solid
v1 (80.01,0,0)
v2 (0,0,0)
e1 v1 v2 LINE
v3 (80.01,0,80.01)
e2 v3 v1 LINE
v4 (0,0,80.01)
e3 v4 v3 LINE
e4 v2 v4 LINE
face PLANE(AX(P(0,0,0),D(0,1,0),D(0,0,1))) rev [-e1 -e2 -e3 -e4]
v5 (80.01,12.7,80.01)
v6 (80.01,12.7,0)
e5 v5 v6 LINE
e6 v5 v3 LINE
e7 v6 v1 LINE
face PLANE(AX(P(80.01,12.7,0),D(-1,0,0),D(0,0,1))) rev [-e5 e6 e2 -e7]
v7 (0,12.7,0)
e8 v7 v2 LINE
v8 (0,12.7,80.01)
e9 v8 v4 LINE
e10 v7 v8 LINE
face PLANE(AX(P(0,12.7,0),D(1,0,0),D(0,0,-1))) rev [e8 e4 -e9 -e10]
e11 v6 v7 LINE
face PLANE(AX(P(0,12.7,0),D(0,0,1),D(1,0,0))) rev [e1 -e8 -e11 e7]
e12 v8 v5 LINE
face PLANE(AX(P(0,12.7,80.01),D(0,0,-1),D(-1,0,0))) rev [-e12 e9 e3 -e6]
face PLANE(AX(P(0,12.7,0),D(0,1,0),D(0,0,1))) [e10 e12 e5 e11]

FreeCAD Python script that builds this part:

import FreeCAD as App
import Part
import Sketcher
Q = App.Units.Quantity


def add_polygon(sketch, points):
    """Adds a closed chain of lines whose ends are joined by coincident constraints."""
    first, n = sketch.GeometryCount, len(points)
    for a, b in zip(points, points[1:] + points[:1]):
        sketch.addGeometry(Part.LineSegment(App.Vector(*a, 0), App.Vector(*b, 0)), False)
    for i in range(n):
        sketch.addConstraint(Sketcher.Constraint("Coincident", first + i, 2, first + (i + 1) % n, 1))

doc = App.newDocument("Part")
params = doc.addObject("Spreadsheet::Sheet", "Params")
for row, (alias, value) in enumerate([
    ("sketch1_width", "3.15 in"),
    ("pad1_length", "0.5 in"),
], start=1):
    params.set(f"A{row}", alias)
    params.set(f"B{row}", "=" + value)
    params.setAlias(f"B{row}", alias)

body = doc.addObject("PartDesign::Body", "Body")

# Sketch on XZ plane
sketch1 = body.newObject("Sketcher::SketchObject", "Sketch")
sketch1.AttachmentSupport = (doc.getObject("XZ_Plane"), [""])
sketch1.MapMode = "FlatFace"
add_polygon(sketch1, [(0, 0), (0, 80), (80, 80), (80, 0)])  # lines 0-3
sketch1.addConstraint([
    Sketcher.Constraint("Vertical", 0),
    Sketcher.Constraint("Horizontal", 1),
    Sketcher.Constraint("Vertical", 2),
    Sketcher.Constraint("Horizontal", 3),
    Sketcher.Constraint("Coincident", 3, 2, -1, 1),
    Sketcher.Constraint("Equal", 3, 0),
    Sketcher.Constraint("DistanceX", 1, 1, 1, 2, Q("3.15 in")),
])
sketch1.setExpression("Constraints[10]", "Params.sketch1_width")
pad1 = body.newObject("PartDesign::Pad", "Pad")
pad1.Profile = sketch1
pad1.setExpression("Length", "Params.pad1_length")
pad1.Reversed = True

doc.recompute()
